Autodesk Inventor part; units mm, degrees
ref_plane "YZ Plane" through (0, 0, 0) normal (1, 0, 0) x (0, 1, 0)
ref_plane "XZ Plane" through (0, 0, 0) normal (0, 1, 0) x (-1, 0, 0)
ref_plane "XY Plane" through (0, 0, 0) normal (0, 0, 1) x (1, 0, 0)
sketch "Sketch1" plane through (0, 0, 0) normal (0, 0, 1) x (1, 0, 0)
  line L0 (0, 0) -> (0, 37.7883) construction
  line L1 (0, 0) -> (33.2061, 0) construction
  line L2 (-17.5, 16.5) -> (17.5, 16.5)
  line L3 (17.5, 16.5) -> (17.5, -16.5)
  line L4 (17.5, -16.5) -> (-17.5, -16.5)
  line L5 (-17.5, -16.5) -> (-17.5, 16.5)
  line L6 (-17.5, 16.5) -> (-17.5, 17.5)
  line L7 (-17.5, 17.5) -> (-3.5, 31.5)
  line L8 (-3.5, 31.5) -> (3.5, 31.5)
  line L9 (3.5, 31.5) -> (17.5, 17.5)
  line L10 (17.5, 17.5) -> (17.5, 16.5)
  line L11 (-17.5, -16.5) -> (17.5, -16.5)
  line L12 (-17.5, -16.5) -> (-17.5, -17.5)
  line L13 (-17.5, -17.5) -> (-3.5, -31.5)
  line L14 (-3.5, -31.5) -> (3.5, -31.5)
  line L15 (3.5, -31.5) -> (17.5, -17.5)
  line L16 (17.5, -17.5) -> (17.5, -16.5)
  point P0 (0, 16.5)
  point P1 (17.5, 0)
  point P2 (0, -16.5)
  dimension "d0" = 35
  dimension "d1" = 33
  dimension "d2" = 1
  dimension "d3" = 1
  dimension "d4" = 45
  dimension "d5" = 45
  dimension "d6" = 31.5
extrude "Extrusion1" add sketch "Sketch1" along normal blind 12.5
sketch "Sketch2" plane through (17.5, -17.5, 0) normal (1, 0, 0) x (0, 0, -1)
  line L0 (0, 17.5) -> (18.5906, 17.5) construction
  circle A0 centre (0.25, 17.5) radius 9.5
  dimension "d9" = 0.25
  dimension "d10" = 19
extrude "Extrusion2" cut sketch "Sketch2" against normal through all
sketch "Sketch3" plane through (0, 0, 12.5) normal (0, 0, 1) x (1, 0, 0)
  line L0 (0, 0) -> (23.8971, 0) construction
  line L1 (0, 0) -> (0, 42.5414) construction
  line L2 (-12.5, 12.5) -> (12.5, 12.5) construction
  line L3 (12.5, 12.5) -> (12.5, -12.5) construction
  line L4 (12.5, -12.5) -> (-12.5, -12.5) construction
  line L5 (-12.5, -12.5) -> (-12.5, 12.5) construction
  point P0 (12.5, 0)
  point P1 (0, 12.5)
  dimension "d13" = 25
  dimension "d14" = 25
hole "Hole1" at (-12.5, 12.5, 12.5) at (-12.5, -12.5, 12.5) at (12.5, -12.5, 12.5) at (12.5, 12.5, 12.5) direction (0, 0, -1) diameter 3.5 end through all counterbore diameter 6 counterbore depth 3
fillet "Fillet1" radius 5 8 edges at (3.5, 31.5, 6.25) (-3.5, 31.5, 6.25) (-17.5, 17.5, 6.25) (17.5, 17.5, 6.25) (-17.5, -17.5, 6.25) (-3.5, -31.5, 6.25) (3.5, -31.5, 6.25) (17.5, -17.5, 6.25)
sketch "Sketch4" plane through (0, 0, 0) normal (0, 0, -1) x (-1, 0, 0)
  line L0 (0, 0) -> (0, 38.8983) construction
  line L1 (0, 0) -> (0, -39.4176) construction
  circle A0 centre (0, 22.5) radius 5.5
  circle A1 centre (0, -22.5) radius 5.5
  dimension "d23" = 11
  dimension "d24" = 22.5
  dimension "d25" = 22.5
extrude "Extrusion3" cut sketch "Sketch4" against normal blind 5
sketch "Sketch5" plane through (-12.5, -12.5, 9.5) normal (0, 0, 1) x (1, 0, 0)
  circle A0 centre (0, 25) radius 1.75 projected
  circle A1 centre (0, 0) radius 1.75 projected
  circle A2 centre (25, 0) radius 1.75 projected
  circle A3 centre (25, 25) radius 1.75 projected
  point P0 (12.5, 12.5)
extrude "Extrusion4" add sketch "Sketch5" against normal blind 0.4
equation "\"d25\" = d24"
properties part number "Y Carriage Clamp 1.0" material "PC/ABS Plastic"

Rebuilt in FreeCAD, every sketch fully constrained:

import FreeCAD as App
import Part
import Sketcher
Q = App.Units.Quantity


def edges_at(feature, points):
    """Names of the edges that pass closest to the given points."""
    edges = feature.Shape.Edges
    near = lambda p: min(range(len(edges)), key=lambda i: edges[i].distToShape(Part.Vertex(*p))[0])
    return sorted({f"Edge{near(p) + 1}" for p in points})


def add_polygon(sketch, points):
    """Adds a closed chain of lines whose ends are joined by coincident constraints."""
    first, n = sketch.GeometryCount, len(points)
    for a, b in zip(points, points[1:] + points[:1]):
        sketch.addGeometry(Part.LineSegment(App.Vector(*a, 0), App.Vector(*b, 0)), False)
    for i in range(n):
        sketch.addConstraint(Sketcher.Constraint("Coincident", first + i, 2, first + (i + 1) % n, 1))

doc = App.newDocument("Part")
params = doc.addObject("Spreadsheet::Sheet", "Params")
for row, (alias, value) in enumerate([
    ("sketch1_height", "35 mm"),
    ("pad1_length", "12.5 mm"),
    ("sketch2_diameter", "19 mm"),
    ("sketch3_diameter", "3.5 mm"),
    ("hole_diameter", "3.5 mm"),
    ("hole_cbore_diameter", "6 mm"),
    ("hole_cbore_depth", "3 mm"),
    ("fillet_radius", "5 mm"),
    ("sketch4_diameter", "11 mm"),
    ("pocket2_length", "5 mm"),
    ("sketch5_diameter", "3.5 mm"),
    ("pad2_length", "0.4 mm"),
], start=1):
    params.set(f"A{row}", alias)
    params.set(f"B{row}", "=" + value)
    params.setAlias(f"B{row}", alias)

body = doc.addObject("PartDesign::Body", "Body")

# Sketch on XY plane
sketch1 = doc.addObject("Sketcher::SketchObject", "Sketch")
body.addObject(sketch1)
sketch1.AttachmentSupport = (doc.XY_Plane, [""])
sketch1.MapMode = "FlatFace"
add_polygon(sketch1, [(-18, 18), (-18, -18), (-4, -32), (4, -32), (18, -18), (18, 18), (4, 32), (-4, 32)])  # lines 0-7
sketch1.addConstraint(Sketcher.Constraint("Vertical", 0))
sketch1.addConstraint(Sketcher.Constraint("Horizontal", 2))
sketch1.addConstraint(Sketcher.Constraint("Vertical", 4))
sketch1.addConstraint(Sketcher.Constraint("Horizontal", 6))
sketch1.addConstraint(Sketcher.Constraint("Symmetric", 0, 2, 4, 2, -1, 1))
sketch1.addConstraint(Sketcher.Constraint("Symmetric", 1, 2, 5, 2, -1, 1))
sketch1.addConstraint(Sketcher.Constraint("Perpendicular", 1, 3))
sketch1.addConstraint(Sketcher.Constraint("Perpendicular", 5, 7))
sketch1.addConstraint(Sketcher.Constraint("Horizontal", 0, 2, 3, 2))
sketch1.addConstraint(Sketcher.Constraint("Horizontal", 4, 2, 7, 2))
sketch1.addConstraint(Sketcher.Constraint("Vertical", 2, 2, 5, 2))
sketch1.addConstraint(Sketcher.Constraint("DistanceY", 0, 2, 0, 1, Q("35 mm")))
sketch1.addConstraint(Sketcher.Constraint("DistanceX", 0, 2, 3, 2, Q("35 mm")))
sketch1.addConstraint(Sketcher.Constraint("DistanceY", 1, 2, -1, 1, Q("31.5 mm")))
sketch1.setExpression("Constraints[19]", "Params.sketch1_height")
pad1 = doc.addObject("PartDesign::Pad", "Pad")
body.addObject(pad1)
pad1.Profile = sketch1
pad1.setExpression("Length", "Params.pad1_length")

# Sketch on YZ plane
sketch2 = doc.addObject("Sketcher::SketchObject", "Sketch001")
body.addObject(sketch2)
sketch2.AttachmentSupport = (doc.YZ_Plane, [""])
sketch2.MapMode = "FlatFace"
sketch2.AttachmentOffset = App.Placement(App.Vector(0, 0, 17.5), App.Rotation())
sketch2.addGeometry(Part.Circle(App.Vector(0, 0, 0), App.Vector(0, 0, 1), 10), False)
sketch2.addConstraint(Sketcher.Constraint("PointOnObject", 0, 3, -2))
sketch2.addConstraint(Sketcher.Constraint("Diameter", 0, Q("19 mm")))
sketch2.addConstraint(Sketcher.Constraint("DistanceY", 0, 3, -1, 1, Q("0.25 mm")))
sketch2.setExpression("Constraints[1]", "Params.sketch2_diameter")
pocket1 = doc.addObject("PartDesign::Pocket", "Pocket")
body.addObject(pocket1)
pocket1.Profile = sketch2
pocket1.Type = "ThroughAll"

# Sketch on XY plane
sketch3 = doc.addObject("Sketcher::SketchObject", "Sketch002")
body.addObject(sketch3)
sketch3.AttachmentSupport = (doc.XY_Plane, [""])
sketch3.MapMode = "FlatFace"
sketch3.AttachmentOffset = App.Placement(App.Vector(0, 0, 12.5), App.Rotation())
sketch3.addGeometry(Part.Circle(App.Vector(-12.5, 12.5, 0), App.Vector(0, 0, 1), 1.8), False)
sketch3.addGeometry(Part.Circle(App.Vector(-12.5, -12.5, 0), App.Vector(0, 0, 1), 1.8), False)
sketch3.addGeometry(Part.Circle(App.Vector(12.5, -12.5, 0), App.Vector(0, 0, 1), 1.8), False)
sketch3.addGeometry(Part.Circle(App.Vector(12.5, 12.5, 0), App.Vector(0, 0, 1), 1.8), False)
sketch3.addConstraint(Sketcher.Constraint("Equal", 0, 1))
sketch3.addConstraint(Sketcher.Constraint("Equal", 1, 2))
sketch3.addConstraint(Sketcher.Constraint("Equal", 2, 3))
sketch3.addConstraint(Sketcher.Constraint("Symmetric", 0, 3, 2, 3, -1, 1))
sketch3.addConstraint(Sketcher.Constraint("Symmetric", 1, 3, 3, 3, -1, 1))
sketch3.addConstraint(Sketcher.Constraint("Symmetric", 1, 3, 2, 3, -2))
sketch3.addConstraint(Sketcher.Constraint("Diameter", 0, Q("3.5 mm")))
sketch3.addConstraint(Sketcher.Constraint("DistanceY", 1, 3, 0, 3, Q("25 mm")))
sketch3.addConstraint(Sketcher.Constraint("DistanceX", 1, 3, 2, 3, Q("25 mm")))
sketch3.setExpression("Constraints[6]", "Params.sketch3_diameter")
doc.recompute()
hole = doc.addObject("PartDesign::Hole", "Hole")
body.addObject(hole)
hole.Profile = sketch3
hole.ThreadType = "None"
hole.setExpression("Diameter", "Params.hole_diameter")
hole.DepthType = "ThroughAll"
hole.HoleCutType = "Counterbore"
hole.setExpression("HoleCutDiameter", "Params.hole_cbore_diameter")
hole.setExpression("HoleCutDepth", "Params.hole_cbore_depth")
doc.recompute()

fillet = doc.addObject("PartDesign::Fillet", "Fillet")
body.addObject(fillet)
fillet.Base = (hole, edges_at(hole, [
    (3.5, 31.5, 6.25),
    (-3.5, 31.5, 6.25),
    (-17.5, 17.5, 6.25),
    (17.5, 17.5, 6.25),
    (-17.5, -17.5, 6.25),
    (-3.5, -31.5, 6.25),
    (3.5, -31.5, 6.25),
    (17.5, -17.5, 6.25),
]))
fillet.setExpression("Radius", "Params.fillet_radius")

# Sketch on XY plane
sketch4 = doc.addObject("Sketcher::SketchObject", "Sketch003")
body.addObject(sketch4)
sketch4.AttachmentSupport = (doc.XY_Plane, [""])
sketch4.MapMode = "FlatFace"
sketch4.addGeometry(Part.Circle(App.Vector(0, 22, 0), App.Vector(0, 0, 1), 6), False)
sketch4.addGeometry(Part.Circle(App.Vector(0, -22, 0), App.Vector(0, 0, 1), 6), False)
sketch4.addConstraint(Sketcher.Constraint("Equal", 0, 1))
sketch4.addConstraint(Sketcher.Constraint("Symmetric", 0, 3, 1, 3, -1, 1))
sketch4.addConstraint(Sketcher.Constraint("PointOnObject", 0, 3, -2))
sketch4.addConstraint(Sketcher.Constraint("Diameter", 0, Q("11 mm")))
sketch4.addConstraint(Sketcher.Constraint("DistanceY", -1, 1, 0, 3, Q("22.5 mm")))
sketch4.setExpression("Constraints[3]", "Params.sketch4_diameter")
pocket2 = doc.addObject("PartDesign::Pocket", "Pocket001")
body.addObject(pocket2)
pocket2.Profile = sketch4
pocket2.setExpression("Length", "Params.pocket2_length")
pocket2.Reversed = True

# Sketch on XY plane
sketch5 = doc.addObject("Sketcher::SketchObject", "Sketch004")
body.addObject(sketch5)
sketch5.AttachmentSupport = (doc.XY_Plane, [""])
sketch5.MapMode = "FlatFace"
sketch5.AttachmentOffset = App.Placement(App.Vector(0, 0, 9.5), App.Rotation())
sketch5.addGeometry(Part.Circle(App.Vector(-12.5, 12.5, 0), App.Vector(0, 0, 1), 1.8), False)
sketch5.addGeometry(Part.Circle(App.Vector(-12.5, -12.5, 0), App.Vector(0, 0, 1), 1.8), False)
sketch5.addGeometry(Part.Circle(App.Vector(12.5, -12.5, 0), App.Vector(0, 0, 1), 1.8), False)
sketch5.addGeometry(Part.Circle(App.Vector(12.5, 12.5, 0), App.Vector(0, 0, 1), 1.8), False)
sketch5.addConstraint(Sketcher.Constraint("Equal", 0, 1))
sketch5.addConstraint(Sketcher.Constraint("Equal", 1, 2))
sketch5.addConstraint(Sketcher.Constraint("Equal", 2, 3))
sketch5.addConstraint(Sketcher.Constraint("Symmetric", 0, 3, 2, 3, -1, 1))
sketch5.addConstraint(Sketcher.Constraint("Symmetric", 1, 3, 3, 3, -1, 1))
sketch5.addConstraint(Sketcher.Constraint("Symmetric", 1, 3, 2, 3, -2))
sketch5.addConstraint(Sketcher.Constraint("Diameter", 0, Q("3.5 mm")))
sketch5.addConstraint(Sketcher.Constraint("DistanceY", 1, 3, 0, 3, Q("25 mm")))
sketch5.addConstraint(Sketcher.Constraint("DistanceX", 1, 3, 2, 3, Q("25 mm")))
sketch5.setExpression("Constraints[6]", "Params.sketch5_diameter")
pad2 = doc.addObject("PartDesign::Pad", "Pad001")
body.addObject(pad2)
pad2.Profile = sketch5
pad2.setExpression("Length", "Params.pad2_length")
pad2.Reversed = True

doc.recompute()
